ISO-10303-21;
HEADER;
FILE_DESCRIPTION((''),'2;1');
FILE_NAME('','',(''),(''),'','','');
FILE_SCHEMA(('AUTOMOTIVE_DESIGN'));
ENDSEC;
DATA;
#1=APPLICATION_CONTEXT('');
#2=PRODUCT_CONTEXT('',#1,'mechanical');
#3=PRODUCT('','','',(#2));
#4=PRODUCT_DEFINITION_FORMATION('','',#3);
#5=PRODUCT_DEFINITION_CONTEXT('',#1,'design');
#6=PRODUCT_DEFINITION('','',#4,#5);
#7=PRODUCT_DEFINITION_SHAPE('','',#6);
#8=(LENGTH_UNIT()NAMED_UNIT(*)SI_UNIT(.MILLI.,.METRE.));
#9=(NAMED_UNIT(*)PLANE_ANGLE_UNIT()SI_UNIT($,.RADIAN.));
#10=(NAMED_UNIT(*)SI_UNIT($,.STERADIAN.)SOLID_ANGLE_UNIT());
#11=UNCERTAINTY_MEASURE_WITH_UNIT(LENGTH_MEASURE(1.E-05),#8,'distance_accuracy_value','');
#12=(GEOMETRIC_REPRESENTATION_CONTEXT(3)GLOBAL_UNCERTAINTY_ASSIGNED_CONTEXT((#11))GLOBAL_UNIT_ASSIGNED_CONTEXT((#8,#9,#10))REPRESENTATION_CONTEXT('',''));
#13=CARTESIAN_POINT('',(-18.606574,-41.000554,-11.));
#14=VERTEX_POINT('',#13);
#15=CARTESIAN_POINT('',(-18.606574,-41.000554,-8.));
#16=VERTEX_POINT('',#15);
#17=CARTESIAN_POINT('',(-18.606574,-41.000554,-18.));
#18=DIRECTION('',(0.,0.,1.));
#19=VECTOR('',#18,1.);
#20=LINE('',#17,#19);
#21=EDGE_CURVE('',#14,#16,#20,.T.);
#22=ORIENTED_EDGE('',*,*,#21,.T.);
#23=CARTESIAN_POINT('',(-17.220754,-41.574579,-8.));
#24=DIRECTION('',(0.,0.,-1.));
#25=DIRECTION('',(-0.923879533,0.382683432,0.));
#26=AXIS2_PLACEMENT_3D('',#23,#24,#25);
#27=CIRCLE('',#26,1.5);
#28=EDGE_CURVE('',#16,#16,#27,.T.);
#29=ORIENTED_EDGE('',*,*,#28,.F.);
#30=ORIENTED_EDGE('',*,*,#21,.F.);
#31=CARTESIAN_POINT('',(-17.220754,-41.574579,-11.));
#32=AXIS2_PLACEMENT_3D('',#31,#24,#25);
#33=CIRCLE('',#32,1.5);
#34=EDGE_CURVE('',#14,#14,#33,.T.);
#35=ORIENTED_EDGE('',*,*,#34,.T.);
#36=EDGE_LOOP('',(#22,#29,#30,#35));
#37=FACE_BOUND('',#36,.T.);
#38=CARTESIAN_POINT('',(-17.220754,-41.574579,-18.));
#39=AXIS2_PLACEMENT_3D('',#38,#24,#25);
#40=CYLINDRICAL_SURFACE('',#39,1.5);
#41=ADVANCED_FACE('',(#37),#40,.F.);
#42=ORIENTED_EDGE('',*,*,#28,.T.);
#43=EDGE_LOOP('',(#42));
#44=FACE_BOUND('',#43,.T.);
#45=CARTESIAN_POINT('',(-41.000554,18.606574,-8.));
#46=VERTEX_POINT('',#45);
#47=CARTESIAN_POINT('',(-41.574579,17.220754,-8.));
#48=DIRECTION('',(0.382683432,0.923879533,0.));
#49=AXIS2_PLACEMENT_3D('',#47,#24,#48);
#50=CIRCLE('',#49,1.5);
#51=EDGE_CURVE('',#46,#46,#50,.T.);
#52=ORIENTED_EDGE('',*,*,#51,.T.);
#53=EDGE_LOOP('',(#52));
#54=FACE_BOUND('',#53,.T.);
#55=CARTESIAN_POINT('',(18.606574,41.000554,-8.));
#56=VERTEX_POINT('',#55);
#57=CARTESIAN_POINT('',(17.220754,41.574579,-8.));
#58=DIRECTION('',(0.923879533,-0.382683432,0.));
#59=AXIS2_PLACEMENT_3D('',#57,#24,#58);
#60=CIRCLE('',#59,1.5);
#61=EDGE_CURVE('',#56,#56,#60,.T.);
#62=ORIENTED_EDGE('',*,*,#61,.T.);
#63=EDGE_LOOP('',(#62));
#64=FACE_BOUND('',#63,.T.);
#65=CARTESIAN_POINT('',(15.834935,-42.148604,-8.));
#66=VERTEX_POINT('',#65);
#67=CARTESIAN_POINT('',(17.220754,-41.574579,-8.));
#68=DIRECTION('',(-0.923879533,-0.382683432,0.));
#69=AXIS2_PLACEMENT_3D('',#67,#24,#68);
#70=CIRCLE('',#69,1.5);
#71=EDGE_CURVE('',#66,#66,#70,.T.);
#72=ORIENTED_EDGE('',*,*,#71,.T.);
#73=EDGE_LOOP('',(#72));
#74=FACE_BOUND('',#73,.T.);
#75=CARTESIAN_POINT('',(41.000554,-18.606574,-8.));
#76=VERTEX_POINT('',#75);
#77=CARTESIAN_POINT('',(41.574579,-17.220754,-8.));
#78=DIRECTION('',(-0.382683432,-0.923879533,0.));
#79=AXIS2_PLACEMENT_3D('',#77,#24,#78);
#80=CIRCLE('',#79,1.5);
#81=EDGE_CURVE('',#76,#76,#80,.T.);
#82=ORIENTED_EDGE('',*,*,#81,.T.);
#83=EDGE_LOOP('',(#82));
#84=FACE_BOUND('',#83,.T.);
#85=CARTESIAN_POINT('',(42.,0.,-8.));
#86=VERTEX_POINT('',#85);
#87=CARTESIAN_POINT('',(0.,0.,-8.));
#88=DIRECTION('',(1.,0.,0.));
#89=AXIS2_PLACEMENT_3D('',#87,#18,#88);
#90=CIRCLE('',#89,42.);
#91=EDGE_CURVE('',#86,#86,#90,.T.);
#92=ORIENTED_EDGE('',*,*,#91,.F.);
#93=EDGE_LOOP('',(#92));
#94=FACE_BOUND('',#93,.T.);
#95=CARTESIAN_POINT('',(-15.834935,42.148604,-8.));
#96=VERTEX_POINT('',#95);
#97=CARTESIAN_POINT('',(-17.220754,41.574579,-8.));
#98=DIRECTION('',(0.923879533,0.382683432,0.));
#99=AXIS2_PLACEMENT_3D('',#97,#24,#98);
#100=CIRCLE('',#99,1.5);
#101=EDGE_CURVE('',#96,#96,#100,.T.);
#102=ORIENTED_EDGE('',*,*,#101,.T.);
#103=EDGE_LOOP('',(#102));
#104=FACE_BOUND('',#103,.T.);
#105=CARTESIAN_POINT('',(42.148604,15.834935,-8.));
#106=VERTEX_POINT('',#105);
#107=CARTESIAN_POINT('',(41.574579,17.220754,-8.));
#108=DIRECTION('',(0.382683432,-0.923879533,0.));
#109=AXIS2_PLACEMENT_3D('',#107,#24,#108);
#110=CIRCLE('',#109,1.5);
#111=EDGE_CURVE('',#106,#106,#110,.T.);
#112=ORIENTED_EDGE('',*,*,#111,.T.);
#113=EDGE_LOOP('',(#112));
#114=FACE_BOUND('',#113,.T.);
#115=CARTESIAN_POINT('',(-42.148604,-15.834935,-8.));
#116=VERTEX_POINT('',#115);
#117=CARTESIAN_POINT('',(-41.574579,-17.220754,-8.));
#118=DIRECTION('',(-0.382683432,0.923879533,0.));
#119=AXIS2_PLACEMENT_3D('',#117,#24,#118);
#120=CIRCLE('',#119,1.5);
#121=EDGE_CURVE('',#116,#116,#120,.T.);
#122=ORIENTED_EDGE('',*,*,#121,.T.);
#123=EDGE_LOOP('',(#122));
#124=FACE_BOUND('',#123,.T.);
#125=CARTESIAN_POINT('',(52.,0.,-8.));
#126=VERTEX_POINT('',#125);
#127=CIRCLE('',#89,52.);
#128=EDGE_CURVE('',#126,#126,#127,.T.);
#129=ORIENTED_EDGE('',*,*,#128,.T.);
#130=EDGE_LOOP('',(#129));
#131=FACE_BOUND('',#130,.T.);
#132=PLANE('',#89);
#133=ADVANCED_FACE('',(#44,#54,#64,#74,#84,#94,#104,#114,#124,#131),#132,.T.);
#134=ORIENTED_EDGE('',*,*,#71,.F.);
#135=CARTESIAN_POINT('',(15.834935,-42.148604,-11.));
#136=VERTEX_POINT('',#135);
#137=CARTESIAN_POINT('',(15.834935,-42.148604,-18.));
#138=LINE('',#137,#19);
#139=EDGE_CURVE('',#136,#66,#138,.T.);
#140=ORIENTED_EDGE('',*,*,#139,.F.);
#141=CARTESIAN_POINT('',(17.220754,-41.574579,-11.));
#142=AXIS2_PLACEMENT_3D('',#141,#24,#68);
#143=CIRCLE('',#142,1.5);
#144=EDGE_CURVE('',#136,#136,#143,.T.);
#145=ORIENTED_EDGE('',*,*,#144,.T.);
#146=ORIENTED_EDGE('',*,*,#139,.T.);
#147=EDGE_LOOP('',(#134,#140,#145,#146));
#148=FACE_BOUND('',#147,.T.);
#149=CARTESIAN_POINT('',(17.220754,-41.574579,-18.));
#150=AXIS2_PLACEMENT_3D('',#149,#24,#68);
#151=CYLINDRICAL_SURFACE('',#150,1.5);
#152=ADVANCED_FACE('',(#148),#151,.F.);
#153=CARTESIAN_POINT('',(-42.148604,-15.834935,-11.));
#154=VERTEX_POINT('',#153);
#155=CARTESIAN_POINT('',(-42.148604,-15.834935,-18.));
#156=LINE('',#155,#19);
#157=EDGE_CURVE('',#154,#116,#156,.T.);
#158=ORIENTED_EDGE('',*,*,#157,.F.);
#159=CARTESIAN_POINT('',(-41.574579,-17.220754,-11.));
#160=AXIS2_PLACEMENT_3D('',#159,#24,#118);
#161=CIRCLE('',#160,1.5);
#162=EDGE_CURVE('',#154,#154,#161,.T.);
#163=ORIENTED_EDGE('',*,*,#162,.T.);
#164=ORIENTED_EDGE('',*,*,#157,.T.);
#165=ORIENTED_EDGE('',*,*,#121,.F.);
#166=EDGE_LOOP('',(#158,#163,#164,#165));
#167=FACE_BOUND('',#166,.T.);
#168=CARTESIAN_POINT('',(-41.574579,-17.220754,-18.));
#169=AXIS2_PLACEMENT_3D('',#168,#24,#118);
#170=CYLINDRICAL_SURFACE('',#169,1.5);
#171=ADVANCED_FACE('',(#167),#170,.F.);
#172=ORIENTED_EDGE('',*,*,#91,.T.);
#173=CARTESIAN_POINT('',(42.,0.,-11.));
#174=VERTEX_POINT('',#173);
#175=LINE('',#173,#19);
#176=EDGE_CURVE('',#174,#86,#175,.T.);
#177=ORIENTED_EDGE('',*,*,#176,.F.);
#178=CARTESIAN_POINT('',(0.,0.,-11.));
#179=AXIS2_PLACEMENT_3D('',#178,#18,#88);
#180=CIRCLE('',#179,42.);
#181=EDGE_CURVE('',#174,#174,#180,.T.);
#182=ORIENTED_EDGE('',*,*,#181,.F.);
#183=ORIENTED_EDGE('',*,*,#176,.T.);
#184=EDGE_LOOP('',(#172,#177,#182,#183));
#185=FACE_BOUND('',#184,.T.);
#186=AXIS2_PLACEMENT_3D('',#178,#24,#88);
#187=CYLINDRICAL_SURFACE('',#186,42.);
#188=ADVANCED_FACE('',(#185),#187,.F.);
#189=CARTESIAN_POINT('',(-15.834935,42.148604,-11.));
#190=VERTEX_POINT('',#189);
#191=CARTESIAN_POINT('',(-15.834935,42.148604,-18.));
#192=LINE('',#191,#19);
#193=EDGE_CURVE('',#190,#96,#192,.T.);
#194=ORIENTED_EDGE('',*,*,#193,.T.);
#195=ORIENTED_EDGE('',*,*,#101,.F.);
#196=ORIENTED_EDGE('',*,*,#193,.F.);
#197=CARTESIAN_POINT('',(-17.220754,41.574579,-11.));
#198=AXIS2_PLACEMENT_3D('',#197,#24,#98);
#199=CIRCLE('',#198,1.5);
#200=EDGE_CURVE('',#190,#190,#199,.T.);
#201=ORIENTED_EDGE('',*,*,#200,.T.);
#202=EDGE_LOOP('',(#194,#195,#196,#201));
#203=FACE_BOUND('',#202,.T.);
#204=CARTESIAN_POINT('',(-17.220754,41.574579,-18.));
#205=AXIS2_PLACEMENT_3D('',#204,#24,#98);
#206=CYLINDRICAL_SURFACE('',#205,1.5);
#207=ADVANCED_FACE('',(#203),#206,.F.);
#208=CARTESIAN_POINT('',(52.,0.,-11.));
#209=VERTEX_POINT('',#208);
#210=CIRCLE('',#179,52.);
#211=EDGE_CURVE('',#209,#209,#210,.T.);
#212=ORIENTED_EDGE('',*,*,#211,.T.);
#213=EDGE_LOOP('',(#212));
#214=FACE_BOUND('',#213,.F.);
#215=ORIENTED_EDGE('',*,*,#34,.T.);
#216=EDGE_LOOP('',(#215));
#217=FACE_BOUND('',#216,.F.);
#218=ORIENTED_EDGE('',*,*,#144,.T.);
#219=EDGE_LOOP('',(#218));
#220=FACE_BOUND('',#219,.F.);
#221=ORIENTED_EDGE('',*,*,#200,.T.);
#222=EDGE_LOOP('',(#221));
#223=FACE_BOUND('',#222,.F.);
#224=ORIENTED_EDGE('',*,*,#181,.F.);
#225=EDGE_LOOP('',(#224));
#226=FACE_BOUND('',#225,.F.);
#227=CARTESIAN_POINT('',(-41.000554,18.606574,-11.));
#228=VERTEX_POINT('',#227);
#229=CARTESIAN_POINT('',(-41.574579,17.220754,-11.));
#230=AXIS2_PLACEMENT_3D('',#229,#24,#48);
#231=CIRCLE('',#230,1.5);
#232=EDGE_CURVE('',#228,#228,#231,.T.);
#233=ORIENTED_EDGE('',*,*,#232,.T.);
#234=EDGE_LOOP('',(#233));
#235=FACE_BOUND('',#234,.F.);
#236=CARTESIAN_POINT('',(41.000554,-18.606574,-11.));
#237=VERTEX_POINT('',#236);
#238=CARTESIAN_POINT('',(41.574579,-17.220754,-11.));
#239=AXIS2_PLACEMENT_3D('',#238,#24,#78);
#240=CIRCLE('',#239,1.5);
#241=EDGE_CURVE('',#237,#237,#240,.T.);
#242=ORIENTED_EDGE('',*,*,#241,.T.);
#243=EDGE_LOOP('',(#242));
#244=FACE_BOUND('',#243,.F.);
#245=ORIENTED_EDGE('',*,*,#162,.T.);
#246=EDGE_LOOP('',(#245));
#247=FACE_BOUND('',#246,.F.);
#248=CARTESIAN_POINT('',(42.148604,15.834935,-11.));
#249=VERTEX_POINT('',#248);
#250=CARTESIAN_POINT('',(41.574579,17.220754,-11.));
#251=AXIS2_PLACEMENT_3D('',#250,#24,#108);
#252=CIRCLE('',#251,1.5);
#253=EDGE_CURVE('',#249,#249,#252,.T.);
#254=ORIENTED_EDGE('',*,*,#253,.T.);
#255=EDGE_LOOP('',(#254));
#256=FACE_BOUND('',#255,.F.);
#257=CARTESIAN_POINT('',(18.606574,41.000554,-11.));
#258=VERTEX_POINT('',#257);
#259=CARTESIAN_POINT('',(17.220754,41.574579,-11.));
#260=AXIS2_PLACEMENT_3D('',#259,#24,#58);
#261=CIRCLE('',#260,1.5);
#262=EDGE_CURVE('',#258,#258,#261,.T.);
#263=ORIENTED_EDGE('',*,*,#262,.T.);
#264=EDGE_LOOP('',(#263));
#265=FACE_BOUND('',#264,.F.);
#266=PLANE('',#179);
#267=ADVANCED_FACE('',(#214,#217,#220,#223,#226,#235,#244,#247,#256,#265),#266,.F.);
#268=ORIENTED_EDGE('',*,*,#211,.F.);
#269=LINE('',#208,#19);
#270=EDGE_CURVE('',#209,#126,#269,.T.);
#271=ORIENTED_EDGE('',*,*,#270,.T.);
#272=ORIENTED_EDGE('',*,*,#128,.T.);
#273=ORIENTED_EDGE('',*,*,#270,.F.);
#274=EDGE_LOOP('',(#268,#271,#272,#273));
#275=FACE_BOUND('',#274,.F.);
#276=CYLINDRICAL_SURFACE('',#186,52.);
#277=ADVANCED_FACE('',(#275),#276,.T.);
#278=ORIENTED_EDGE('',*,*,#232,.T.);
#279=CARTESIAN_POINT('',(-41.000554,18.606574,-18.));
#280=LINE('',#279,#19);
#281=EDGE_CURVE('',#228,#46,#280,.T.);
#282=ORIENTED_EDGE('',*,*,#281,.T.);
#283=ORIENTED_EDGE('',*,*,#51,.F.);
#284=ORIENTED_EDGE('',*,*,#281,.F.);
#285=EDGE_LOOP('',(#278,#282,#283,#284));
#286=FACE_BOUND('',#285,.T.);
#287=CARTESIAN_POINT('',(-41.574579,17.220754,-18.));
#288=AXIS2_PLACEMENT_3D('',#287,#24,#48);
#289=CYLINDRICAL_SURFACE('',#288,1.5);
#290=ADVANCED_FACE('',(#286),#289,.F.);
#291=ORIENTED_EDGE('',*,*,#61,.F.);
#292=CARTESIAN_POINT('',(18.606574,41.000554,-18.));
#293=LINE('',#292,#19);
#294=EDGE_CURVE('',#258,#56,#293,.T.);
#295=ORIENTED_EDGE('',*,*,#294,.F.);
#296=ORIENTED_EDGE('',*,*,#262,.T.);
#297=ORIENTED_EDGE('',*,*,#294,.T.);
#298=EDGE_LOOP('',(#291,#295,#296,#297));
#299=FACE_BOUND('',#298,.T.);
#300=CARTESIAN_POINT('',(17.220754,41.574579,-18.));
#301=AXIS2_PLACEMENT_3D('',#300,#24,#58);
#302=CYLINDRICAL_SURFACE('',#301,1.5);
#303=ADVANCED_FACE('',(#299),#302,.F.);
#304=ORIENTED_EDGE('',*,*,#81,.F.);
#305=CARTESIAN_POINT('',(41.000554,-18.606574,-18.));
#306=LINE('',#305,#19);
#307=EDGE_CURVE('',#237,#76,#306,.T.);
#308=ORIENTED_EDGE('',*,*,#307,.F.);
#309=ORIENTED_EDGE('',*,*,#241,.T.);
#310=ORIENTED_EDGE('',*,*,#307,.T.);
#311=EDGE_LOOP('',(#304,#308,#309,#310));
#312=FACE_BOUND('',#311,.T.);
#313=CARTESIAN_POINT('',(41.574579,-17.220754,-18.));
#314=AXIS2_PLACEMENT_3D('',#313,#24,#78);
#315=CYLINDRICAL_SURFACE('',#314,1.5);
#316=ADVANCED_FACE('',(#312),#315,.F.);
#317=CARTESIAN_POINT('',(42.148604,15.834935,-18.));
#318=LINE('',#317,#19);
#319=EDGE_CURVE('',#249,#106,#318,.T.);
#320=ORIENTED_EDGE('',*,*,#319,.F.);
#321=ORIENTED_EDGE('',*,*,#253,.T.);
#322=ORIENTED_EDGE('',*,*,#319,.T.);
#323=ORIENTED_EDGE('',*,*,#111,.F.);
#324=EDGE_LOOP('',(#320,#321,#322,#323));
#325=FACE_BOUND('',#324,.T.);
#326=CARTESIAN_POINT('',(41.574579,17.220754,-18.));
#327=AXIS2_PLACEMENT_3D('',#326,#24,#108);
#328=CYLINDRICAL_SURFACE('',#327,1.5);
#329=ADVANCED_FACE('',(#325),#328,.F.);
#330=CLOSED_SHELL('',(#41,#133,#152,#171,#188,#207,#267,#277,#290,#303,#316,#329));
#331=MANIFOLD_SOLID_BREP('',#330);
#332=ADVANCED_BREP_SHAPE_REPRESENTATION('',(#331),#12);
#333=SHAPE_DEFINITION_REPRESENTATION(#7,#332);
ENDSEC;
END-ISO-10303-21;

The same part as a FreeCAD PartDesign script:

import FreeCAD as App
import Part
import Sketcher

V = App.Vector

doc = App.newDocument("Part")
body = doc.addObject("PartDesign::Body", "Body")

sketch1 = body.newObject("Sketcher::SketchObject", "Sketch")
sketch1.AttachmentSupport = (doc.getObject("XY_Plane"), [""])
sketch1.MapMode = "FlatFace"
sketch1.addGeometry(Part.Circle(V(0, 0, 0), V(0, 0, 1), 1.5), False)
sketch1.addConstraint([
    Sketcher.Constraint("Coincident", 0, 3, -1, 1),
    Sketcher.Constraint("Diameter", 0, 3.0),
])
pad1 = body.newObject("PartDesign::Pad", "Pad")
pad1.Profile = sketch1
pad1.Length = 20
body2 = doc.addObject("PartDesign::Body", "Body001")
doc.recompute()

body.Placement = App.Placement(V(-31.819805, 31.819805, -18), App.Rotation(V(0, 0, 1), 45))
boolean = body2.newObject("PartDesign::Boolean", "Boolean")
boolean.Type = "Fuse"
boolean.addObjects([body])
body3 = doc.addObject("PartDesign::Body", "Body002")

sketch2 = body3.newObject("Sketcher::SketchObject", "Sketch001")
sketch2.AttachmentSupport = (doc.getObject("XY_Plane002"), [""])
sketch2.MapMode = "FlatFace"
sketch2.AttachmentOffset = App.Placement(V(0, 0, -18), App.Rotation())
sketch2.addGeometry(Part.Circle(V(-45, 0, 0), V(0, 0, 1), 1.5), False)
sketch2.addConstraint([
    Sketcher.Constraint("PointOnObject", 0, 3, -1),
    Sketcher.Constraint("Diameter", 0, 3.0),
    Sketcher.Constraint("DistanceX", 0, 3, -1, 1, 45.0),
])
pad2 = body3.newObject("PartDesign::Pad", "Pad001")
pad2.Profile = sketch2
pad2.Length = 20
body4 = doc.addObject("PartDesign::Body", "Body003")

sketch3 = body4.newObject("Sketcher::SketchObject", "Sketch002")
sketch3.AttachmentSupport = (doc.getObject("XY_Plane003"), [""])
sketch3.MapMode = "FlatFace"
sketch3.addGeometry(Part.Circle(V(0, 0, 0), V(0, 0, 1), 1.5), False)
sketch3.addConstraint([
    Sketcher.Constraint("Coincident", 0, 3, -1, 1),
    Sketcher.Constraint("Diameter", 0, 3.0),
])
pad3 = body4.newObject("PartDesign::Pad", "Pad002")
pad3.Profile = sketch3
pad3.Length = 20
body5 = doc.addObject("PartDesign::Body", "Body004")
doc.recompute()

body4.Placement = App.Placement(V(-31.819805, -31.819805, -18), App.Rotation(V(0, 0, 1), 135))
boolean2 = body5.newObject("PartDesign::Boolean", "Boolean001")
boolean2.Type = "Fuse"
boolean2.addObjects([body4])
body6 = doc.addObject("PartDesign::Body", "Body005")

sketch4 = body6.newObject("Sketcher::SketchObject", "Sketch003")
sketch4.AttachmentSupport = (doc.getObject("XY_Plane005"), [""])
sketch4.MapMode = "FlatFace"
sketch4.AttachmentOffset = App.Placement(V(0, 0, -18), App.Rotation())
sketch4.addGeometry(Part.Circle(V(0, -45, 0), V(0, 0, 1), 1.5), False)
sketch4.addConstraint([
    Sketcher.Constraint("PointOnObject", 0, 3, -2),
    Sketcher.Constraint("Diameter", 0, 3.0),
    Sketcher.Constraint("DistanceY", 0, 3, -1, 1, 45.0),
])
pad4 = body6.newObject("PartDesign::Pad", "Pad003")
pad4.Profile = sketch4
pad4.Length = 20
body7 = doc.addObject("PartDesign::Body", "Body006")

sketch5 = body7.newObject("Sketcher::SketchObject", "Sketch004")
sketch5.AttachmentSupport = (doc.getObject("XY_Plane006"), [""])
sketch5.MapMode = "FlatFace"
sketch5.addGeometry(Part.Circle(V(0, 0, 0), V(0, 0, 1), 1.5), False)
sketch5.addConstraint([
    Sketcher.Constraint("Coincident", 0, 3, -1, 1),
    Sketcher.Constraint("Diameter", 0, 3.0),
])
pad5 = body7.newObject("PartDesign::Pad", "Pad004")
pad5.Profile = sketch5
pad5.Length = 20
body8 = doc.addObject("PartDesign::Body", "Body007")
doc.recompute()

body7.Placement = App.Placement(V(31.819805, -31.819805, -18), App.Rotation(V(0, 0, 1), 225))
boolean3 = body8.newObject("PartDesign::Boolean", "Boolean002")
boolean3.Type = "Fuse"
boolean3.addObjects([body7])
body9 = doc.addObject("PartDesign::Body", "Body008")

sketch6 = body9.newObject("Sketcher::SketchObject", "Sketch005")
sketch6.AttachmentSupport = (doc.getObject("XY_Plane008"), [""])
sketch6.MapMode = "FlatFace"
sketch6.AttachmentOffset = App.Placement(V(0, 0, -18), App.Rotation())
sketch6.addGeometry(Part.Circle(V(45, 0, 0), V(0, 0, 1), 1.5), False)
sketch6.addConstraint([
    Sketcher.Constraint("PointOnObject", 0, 3, -1),
    Sketcher.Constraint("Diameter", 0, 3.0),
    Sketcher.Constraint("DistanceX", -1, 1, 0, 3, 45.0),
])
pad6 = body9.newObject("PartDesign::Pad", "Pad005")
pad6.Profile = sketch6
pad6.Length = 20
body10 = doc.addObject("PartDesign::Body", "Body009")

sketch7 = body10.newObject("Sketcher::SketchObject", "Sketch006")
sketch7.AttachmentSupport = (doc.getObject("XY_Plane009"), [""])
sketch7.MapMode = "FlatFace"
sketch7.addGeometry(Part.Circle(V(0, 0, 0), V(0, 0, 1), 1.5), False)
sketch7.addConstraint([
    Sketcher.Constraint("Coincident", 0, 3, -1, 1),
    Sketcher.Constraint("Diameter", 0, 3.0),
])
pad7 = body10.newObject("PartDesign::Pad", "Pad006")
pad7.Profile = sketch7
pad7.Length = 20
body11 = doc.addObject("PartDesign::Body", "Body010")
doc.recompute()

body10.Placement = App.Placement(V(31.819805, 31.819805, -18), App.Rotation(V(0, 0, -1), 45))
boolean4 = body11.newObject("PartDesign::Boolean", "Boolean003")
boolean4.Type = "Fuse"
boolean4.addObjects([body10])
body12 = doc.addObject("PartDesign::Body", "Body011")
body12.AllowCompound = True

sketch8 = body12.newObject("Sketcher::SketchObject", "Sketch007")
sketch8.AttachmentSupport = (doc.getObject("XY_Plane011"), [""])
sketch8.MapMode = "FlatFace"
sketch8.AttachmentOffset = App.Placement(V(0, 0, -18), App.Rotation())
sketch8.addGeometry(Part.Circle(V(0, 45, 0), V(0, 0, 1), 1.5), False)
sketch8.addConstraint([
    Sketcher.Constraint("PointOnObject", 0, 3, -2),
    Sketcher.Constraint("Diameter", 0, 3.0),
    Sketcher.Constraint("DistanceY", -1, 1, 0, 3, 45.0),
])
pad8 = body12.newObject("PartDesign::Pad", "Pad007")
pad8.Profile = sketch8
pad8.Length = 20
doc.recompute()

boolean5 = body12.newObject("PartDesign::Boolean", "Boolean004")
boolean5.Type = "Fuse"
boolean5.addObjects([body2])
doc.recompute()

boolean6 = body12.newObject("PartDesign::Boolean", "Boolean005")
boolean6.Type = "Fuse"
boolean6.addObjects([body3])
doc.recompute()

boolean7 = body12.newObject("PartDesign::Boolean", "Boolean006")
boolean7.Type = "Fuse"
boolean7.addObjects([body5])
doc.recompute()

boolean8 = body12.newObject("PartDesign::Boolean", "Boolean007")
boolean8.Type = "Fuse"
boolean8.addObjects([body6])
doc.recompute()

boolean9 = body12.newObject("PartDesign::Boolean", "Boolean008")
boolean9.Type = "Fuse"
boolean9.addObjects([body8])
doc.recompute()

boolean10 = body12.newObject("PartDesign::Boolean", "Boolean009")
boolean10.Type = "Fuse"
boolean10.addObjects([body9])
doc.recompute()

boolean11 = body12.newObject("PartDesign::Boolean", "Boolean010")
boolean11.Type = "Fuse"
boolean11.addObjects([body11])
body13 = doc.addObject("PartDesign::Body", "Body012")
body13.AllowCompound = True
doc.recompute()

body12.Placement = App.Placement(V(0, 0, 0), App.Rotation(V(0, 0, 1), 22.5))
boolean12 = body13.newObject("PartDesign::Boolean", "Boolean011")
boolean12.Type = "Fuse"
boolean12.addObjects([body12])
body14 = doc.addObject("PartDesign::Body", "Body013")

sketch9 = body14.newObject("Sketcher::SketchObject", "Sketch008")
sketch9.AttachmentSupport = (doc.getObject("XY_Plane013"), [""])
sketch9.MapMode = "FlatFace"
sketch9.AttachmentOffset = App.Placement(V(0, 0, -11), App.Rotation())
sketch9.addGeometry([
    Part.Circle(V(0, 0, 0), V(0, 0, 1), 52),
    Part.Circle(V(0, 0, 0), V(0, 0, 1), 42),
], False)
sketch9.addConstraint([
    Sketcher.Constraint("Coincident", 0, 3, -1, 1),
    Sketcher.Constraint("Coincident", 1, 3, -1, 1),
    Sketcher.Constraint("Diameter", 0, 104.0),
    Sketcher.Constraint("Diameter", 1, 84.0),
])
pad9 = body14.newObject("PartDesign::Pad", "Pad008")
pad9.Profile = sketch9
pad9.Length = 3
doc.recompute()

boolean13 = body14.newObject("PartDesign::Boolean", "Boolean012")
boolean13.Type = "Cut"
boolean13.addObjects([body13])

doc.recompute()
